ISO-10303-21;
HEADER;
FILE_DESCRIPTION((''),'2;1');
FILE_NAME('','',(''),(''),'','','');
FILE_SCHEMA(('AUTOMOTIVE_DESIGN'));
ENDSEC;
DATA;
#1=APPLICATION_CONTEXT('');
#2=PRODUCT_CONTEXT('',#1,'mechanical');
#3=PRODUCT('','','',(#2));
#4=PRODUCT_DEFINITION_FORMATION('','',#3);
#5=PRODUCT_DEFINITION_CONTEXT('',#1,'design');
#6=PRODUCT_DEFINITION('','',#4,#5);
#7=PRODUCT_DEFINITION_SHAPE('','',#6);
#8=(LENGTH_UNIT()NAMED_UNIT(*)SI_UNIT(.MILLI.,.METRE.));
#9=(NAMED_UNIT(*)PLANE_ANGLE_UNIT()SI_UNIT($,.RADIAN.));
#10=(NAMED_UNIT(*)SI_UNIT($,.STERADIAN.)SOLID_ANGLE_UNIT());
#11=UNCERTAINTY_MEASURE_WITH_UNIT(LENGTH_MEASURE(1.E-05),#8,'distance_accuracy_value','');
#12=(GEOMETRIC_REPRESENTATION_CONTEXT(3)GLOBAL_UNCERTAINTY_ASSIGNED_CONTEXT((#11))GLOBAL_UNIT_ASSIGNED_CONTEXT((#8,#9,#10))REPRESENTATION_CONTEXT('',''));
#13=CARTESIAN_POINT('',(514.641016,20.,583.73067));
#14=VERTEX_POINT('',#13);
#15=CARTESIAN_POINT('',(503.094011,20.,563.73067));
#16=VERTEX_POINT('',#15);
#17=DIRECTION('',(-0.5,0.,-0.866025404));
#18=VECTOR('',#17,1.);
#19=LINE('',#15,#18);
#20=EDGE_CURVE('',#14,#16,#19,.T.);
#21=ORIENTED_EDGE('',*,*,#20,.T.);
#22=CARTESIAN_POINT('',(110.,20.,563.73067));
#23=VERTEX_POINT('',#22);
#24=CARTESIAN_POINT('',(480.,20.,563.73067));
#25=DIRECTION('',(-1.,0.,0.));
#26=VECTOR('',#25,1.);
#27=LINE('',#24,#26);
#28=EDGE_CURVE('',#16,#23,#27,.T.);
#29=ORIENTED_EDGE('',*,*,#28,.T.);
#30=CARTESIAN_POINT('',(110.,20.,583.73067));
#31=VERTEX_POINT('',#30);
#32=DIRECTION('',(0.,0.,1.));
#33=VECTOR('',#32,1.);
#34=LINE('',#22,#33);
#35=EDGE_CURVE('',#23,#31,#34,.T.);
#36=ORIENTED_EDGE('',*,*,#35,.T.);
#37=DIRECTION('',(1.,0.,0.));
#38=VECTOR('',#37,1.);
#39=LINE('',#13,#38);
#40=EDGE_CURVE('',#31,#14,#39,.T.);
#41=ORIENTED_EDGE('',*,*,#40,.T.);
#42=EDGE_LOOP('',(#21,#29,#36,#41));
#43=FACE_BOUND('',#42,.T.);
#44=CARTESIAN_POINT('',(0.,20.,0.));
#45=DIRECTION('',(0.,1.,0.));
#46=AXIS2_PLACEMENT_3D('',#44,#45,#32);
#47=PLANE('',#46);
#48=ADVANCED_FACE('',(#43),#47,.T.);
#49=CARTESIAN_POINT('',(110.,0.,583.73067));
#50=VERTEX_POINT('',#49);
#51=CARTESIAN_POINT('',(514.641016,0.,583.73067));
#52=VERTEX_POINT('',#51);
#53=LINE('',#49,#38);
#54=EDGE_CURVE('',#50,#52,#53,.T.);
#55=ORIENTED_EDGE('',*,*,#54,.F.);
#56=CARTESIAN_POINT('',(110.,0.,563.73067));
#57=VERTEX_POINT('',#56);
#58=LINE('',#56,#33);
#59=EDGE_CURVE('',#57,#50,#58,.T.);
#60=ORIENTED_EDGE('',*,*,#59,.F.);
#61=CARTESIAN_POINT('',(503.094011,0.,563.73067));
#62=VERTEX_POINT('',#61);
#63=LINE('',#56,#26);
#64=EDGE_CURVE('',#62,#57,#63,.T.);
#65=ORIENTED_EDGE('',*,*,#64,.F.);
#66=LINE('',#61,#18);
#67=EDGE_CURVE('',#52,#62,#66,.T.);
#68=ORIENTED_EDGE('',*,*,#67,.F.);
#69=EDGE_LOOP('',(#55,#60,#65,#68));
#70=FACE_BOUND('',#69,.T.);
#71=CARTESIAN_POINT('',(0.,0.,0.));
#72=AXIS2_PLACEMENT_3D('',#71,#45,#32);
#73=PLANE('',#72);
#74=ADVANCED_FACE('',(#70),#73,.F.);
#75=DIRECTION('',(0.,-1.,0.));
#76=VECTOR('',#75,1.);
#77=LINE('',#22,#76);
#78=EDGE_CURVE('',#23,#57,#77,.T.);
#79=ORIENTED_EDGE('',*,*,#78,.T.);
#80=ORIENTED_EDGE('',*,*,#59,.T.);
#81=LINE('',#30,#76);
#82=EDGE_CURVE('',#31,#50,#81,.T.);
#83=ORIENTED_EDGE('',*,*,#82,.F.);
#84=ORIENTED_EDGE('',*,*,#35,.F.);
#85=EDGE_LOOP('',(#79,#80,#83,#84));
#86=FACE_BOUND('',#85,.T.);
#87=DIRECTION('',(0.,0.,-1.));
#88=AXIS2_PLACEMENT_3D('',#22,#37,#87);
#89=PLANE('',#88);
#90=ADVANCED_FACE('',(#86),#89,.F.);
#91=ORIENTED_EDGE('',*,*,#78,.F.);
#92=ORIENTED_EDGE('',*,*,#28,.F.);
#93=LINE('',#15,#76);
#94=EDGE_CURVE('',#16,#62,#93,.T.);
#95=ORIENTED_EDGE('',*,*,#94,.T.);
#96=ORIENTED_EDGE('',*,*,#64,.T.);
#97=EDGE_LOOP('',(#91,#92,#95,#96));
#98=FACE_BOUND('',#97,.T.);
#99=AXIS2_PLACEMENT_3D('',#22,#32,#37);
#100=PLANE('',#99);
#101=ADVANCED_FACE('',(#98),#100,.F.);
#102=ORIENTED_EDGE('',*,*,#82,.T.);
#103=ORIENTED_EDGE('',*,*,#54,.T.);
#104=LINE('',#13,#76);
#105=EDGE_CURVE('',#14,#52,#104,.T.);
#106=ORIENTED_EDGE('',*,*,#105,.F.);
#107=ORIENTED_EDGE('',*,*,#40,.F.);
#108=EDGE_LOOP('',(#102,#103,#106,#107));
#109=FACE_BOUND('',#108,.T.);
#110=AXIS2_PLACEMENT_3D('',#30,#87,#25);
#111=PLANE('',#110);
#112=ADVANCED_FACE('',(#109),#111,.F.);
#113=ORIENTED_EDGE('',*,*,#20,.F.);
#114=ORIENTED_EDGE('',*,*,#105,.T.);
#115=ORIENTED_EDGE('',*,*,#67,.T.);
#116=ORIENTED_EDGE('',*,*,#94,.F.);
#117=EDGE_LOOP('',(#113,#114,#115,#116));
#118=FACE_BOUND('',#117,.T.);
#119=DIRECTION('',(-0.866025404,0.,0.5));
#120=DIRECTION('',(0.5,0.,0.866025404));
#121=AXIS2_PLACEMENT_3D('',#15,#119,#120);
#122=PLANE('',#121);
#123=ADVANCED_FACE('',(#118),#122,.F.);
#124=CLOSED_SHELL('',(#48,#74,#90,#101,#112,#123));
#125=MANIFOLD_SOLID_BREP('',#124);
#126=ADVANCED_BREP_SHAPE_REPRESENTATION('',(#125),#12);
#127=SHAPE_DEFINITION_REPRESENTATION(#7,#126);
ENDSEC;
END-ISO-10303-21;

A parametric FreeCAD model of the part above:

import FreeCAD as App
import Part
import Sketcher
Q = App.Units.Quantity


def add_polygon(sketch, points):
    """Adds a closed chain of lines whose ends are joined by coincident constraints."""
    first, n = sketch.GeometryCount, len(points)
    for a, b in zip(points, points[1:] + points[:1]):
        sketch.addGeometry(Part.LineSegment(App.Vector(*a, 0), App.Vector(*b, 0)), False)
    for i in range(n):
        sketch.addConstraint(Sketcher.Constraint("Coincident", first + i, 2, first + (i + 1) % n, 1))

doc = App.newDocument("Part")
body = doc.addObject("PartDesign::Body", "Body")

# Sketch on XZ plane
sketch1 = body.newObject("Sketcher::SketchObject", "Sketch")
sketch1.AttachmentSupport = (doc.getObject("XZ_Plane"), [""])
sketch1.MapMode = "FlatFace"
add_polygon(sketch1, [(503.094011, 563.73067), (110, 563.73067), (110, 583.73067), (514.641016, 583.73067)])  # lines 0-3
sketch1.addConstraint([
    Sketcher.Constraint("Horizontal", 0),
    Sketcher.Constraint("Vertical", 1),
    Sketcher.Constraint("Horizontal", 2),
    Sketcher.Constraint("DistanceY", 1, 1, 1, 2, Q("20 mm")),
    Sketcher.Constraint("Angle", 3, Q("-120 deg")),
    Sketcher.Constraint("DistanceX", -1, 1, 0, 2, Q("110 mm")),
    Sketcher.Constraint("DistanceX", 0, 2, 0, 1, Q("393.094011 mm")),
    Sketcher.Constraint("DistanceY", -1, 1, 0, 2, Q("563.73067 mm")),
])
pad1 = body.newObject("PartDesign::Pad", "Pad")
pad1.Profile = sketch1
pad1.Length = 20
pad1.Reversed = True

doc.recompute()
